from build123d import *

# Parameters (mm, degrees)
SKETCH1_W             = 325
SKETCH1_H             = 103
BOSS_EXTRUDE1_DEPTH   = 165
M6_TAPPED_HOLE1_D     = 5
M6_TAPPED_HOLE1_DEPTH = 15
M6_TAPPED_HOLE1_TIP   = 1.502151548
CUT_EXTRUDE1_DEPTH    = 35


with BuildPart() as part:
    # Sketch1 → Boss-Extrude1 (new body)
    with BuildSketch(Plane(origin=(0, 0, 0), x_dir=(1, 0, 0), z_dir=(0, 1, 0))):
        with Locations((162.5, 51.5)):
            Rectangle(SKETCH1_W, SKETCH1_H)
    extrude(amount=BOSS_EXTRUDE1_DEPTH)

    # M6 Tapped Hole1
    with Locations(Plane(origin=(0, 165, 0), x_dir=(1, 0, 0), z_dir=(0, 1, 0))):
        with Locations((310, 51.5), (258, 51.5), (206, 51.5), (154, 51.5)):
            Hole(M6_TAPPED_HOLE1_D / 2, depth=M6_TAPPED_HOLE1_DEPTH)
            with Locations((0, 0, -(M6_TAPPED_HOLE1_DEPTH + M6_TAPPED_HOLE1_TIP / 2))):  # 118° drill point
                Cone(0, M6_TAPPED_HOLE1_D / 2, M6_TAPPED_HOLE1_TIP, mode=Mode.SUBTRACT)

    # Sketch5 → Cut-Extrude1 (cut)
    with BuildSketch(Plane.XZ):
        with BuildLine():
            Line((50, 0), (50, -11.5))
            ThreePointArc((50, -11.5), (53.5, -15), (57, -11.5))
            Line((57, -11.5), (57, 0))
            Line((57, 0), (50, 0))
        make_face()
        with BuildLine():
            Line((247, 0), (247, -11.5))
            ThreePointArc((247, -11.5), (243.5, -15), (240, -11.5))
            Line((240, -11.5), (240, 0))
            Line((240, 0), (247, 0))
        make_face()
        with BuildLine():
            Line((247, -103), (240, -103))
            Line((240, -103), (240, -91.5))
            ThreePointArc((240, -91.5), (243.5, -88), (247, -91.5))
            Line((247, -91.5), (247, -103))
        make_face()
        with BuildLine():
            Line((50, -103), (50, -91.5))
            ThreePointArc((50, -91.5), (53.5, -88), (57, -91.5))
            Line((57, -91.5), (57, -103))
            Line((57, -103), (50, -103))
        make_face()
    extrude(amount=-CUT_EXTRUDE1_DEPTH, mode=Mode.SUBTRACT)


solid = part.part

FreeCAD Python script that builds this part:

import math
import FreeCAD as App
import Part
import Sketcher


def add_polygon(sketch, points):
    """Adds a closed chain of lines whose ends are joined by coincident constraints."""
    first, n = sketch.GeometryCount, len(points)
    for a, b in zip(points, points[1:] + points[:1]):
        sketch.addGeometry(Part.LineSegment(App.Vector(*a, 0), App.Vector(*b, 0)), False)
    for i in range(n):
        sketch.addConstraint(Sketcher.Constraint("Coincident", first + i, 2, first + (i + 1) % n, 1))

doc = App.newDocument("Part")
body = doc.addObject("PartDesign::Body", "Body")

# Sketch on XZ plane
sketch1 = body.newObject("Sketcher::SketchObject", "Sketch")
sketch1.AttachmentSupport = (doc.getObject("XZ_Plane"), [""])
sketch1.MapMode = "FlatFace"
add_polygon(sketch1, [(0, -103), (0, 0), (325, 0), (325, -103)])  # lines 0-3
sketch1.addConstraint(Sketcher.Constraint("Vertical", 0))
sketch1.addConstraint(Sketcher.Constraint("Horizontal", 1))
sketch1.addConstraint(Sketcher.Constraint("Vertical", 2))
sketch1.addConstraint(Sketcher.Constraint("Horizontal", 3))
sketch1.addConstraint(Sketcher.Constraint("Coincident", 0, 2, -1, 1))
sketch1.addConstraint(Sketcher.Constraint("DistanceX", 1, 1, 1, 2, 325.0))
sketch1.addConstraint(Sketcher.Constraint("DistanceY", 0, 1, 0, 2, 103.0))
pad1 = body.newObject("PartDesign::Pad", "Pad")
pad1.Profile = sketch1
pad1.Length = 165
pad1.Reversed = True

# Sketch on XZ plane
sketch2 = body.newObject("Sketcher::SketchObject", "Sketch001")
sketch2.AttachmentSupport = (doc.getObject("XZ_Plane"), [""])
sketch2.MapMode = "FlatFace"
sketch2.AttachmentOffset = App.Placement(App.Vector(0, 0, -165), App.Rotation())
sketch2.addGeometry(Part.Circle(App.Vector(310, -51.5, 0), App.Vector(0, 0, 1), 2.5), False)
sketch2.addGeometry(Part.Circle(App.Vector(258, -51.5, 0), App.Vector(0, 0, 1), 2.5), False)
sketch2.addGeometry(Part.Circle(App.Vector(206, -51.5, 0), App.Vector(0, 0, 1), 2.5), False)
sketch2.addGeometry(Part.Circle(App.Vector(154, -51.5, 0), App.Vector(0, 0, 1), 2.5), False)
sketch2.addConstraint(Sketcher.Constraint("Equal", 0, 1))
sketch2.addConstraint(Sketcher.Constraint("Equal", 1, 2))
sketch2.addConstraint(Sketcher.Constraint("Equal", 2, 3))
sketch2.addConstraint(Sketcher.Constraint("Horizontal", 0, 3, 1, 3))
sketch2.addConstraint(Sketcher.Constraint("Horizontal", 1, 3, 2, 3))
sketch2.addConstraint(Sketcher.Constraint("Horizontal", 2, 3, 3, 3))
sketch2.addConstraint(Sketcher.Constraint("Diameter", 0, 5.0))
sketch2.addConstraint(Sketcher.Constraint("DistanceX", -1, 1, 0, 3, 310.0))
sketch2.addConstraint(Sketcher.Constraint("DistanceX", -1, 1, 1, 3, 258.0))
sketch2.addConstraint(Sketcher.Constraint("DistanceX", -1, 1, 2, 3, 206.0))
sketch2.addConstraint(Sketcher.Constraint("DistanceX", -1, 1, 3, 3, 154.0))
sketch2.addConstraint(Sketcher.Constraint("DistanceY", 0, 3, -1, 1, 51.5))
doc.recompute()
hole = body.newObject("PartDesign::Hole", "Hole")
hole.Profile = sketch2
hole.ThreadType = "None"
hole.Diameter = 5
hole.DepthType = "Dimension"
hole.Depth = 15
hole.DrillPoint = "Angled"
hole.DrillPointAngle = 118
hole.Reversed = True

# Sketch on XZ plane
sketch3 = body.newObject("Sketcher::SketchObject", "Sketch002")
sketch3.AttachmentSupport = (doc.getObject("XZ_Plane"), [""])
sketch3.MapMode = "FlatFace"
sketch3.addGeometry(Part.LineSegment(App.Vector(50, 0, 0), App.Vector(50, -11.5, 0)), False)
sketch3.addGeometry(Part.ArcOfCircle(Part.Circle(App.Vector(53.5, -11.5, 0), App.Vector(0, 0, 1), 3.5), math.radians(180), math.radians(360)), False)
sketch3.addGeometry(Part.LineSegment(App.Vector(57, -11.5, 0), App.Vector(57, 0, 0)), False)
sketch3.addGeometry(Part.LineSegment(App.Vector(57, 0, 0), App.Vector(50, 0, 0)), False)
sketch3.addGeometry(Part.LineSegment(App.Vector(247, -11.5, 0), App.Vector(247, 0, 0)), False)
sketch3.addGeometry(Part.LineSegment(App.Vector(247, 0, 0), App.Vector(240, 0, 0)), False)
sketch3.addGeometry(Part.LineSegment(App.Vector(240, 0, 0), App.Vector(240, -11.5, 0)), False)
sketch3.addGeometry(Part.ArcOfCircle(Part.Circle(App.Vector(243.5, -11.5, 0), App.Vector(0, 0, 1), 3.5), math.radians(180), math.radians(360)), False)
sketch3.addGeometry(Part.LineSegment(App.Vector(240, -103, 0), App.Vector(247, -103, 0)), False)
sketch3.addGeometry(Part.LineSegment(App.Vector(247, -103, 0), App.Vector(247, -91.5, 0)), False)
sketch3.addGeometry(Part.ArcOfCircle(Part.Circle(App.Vector(243.5, -91.5, 0), App.Vector(0, 0, 1), 3.5), math.radians(0), math.radians(180)), False)
sketch3.addGeometry(Part.LineSegment(App.Vector(240, -91.5, 0), App.Vector(240, -103, 0)), False)
sketch3.addGeometry(Part.LineSegment(App.Vector(50, -91.5, 0), App.Vector(50, -103, 0)), False)
sketch3.addGeometry(Part.LineSegment(App.Vector(50, -103, 0), App.Vector(57, -103, 0)), False)
sketch3.addGeometry(Part.LineSegment(App.Vector(57, -103, 0), App.Vector(57, -91.5, 0)), False)
sketch3.addGeometry(Part.ArcOfCircle(Part.Circle(App.Vector(53.5, -91.5, 0), App.Vector(0, 0, 1), 3.5), math.radians(0), math.radians(180)), False)
sketch3.addConstraint(Sketcher.Constraint("Tangent", 0, 2, 1, 1))
sketch3.addConstraint(Sketcher.Constraint("Tangent", 1, 2, 2, 1))
sketch3.addConstraint(Sketcher.Constraint("Coincident", 2, 2, 3, 1))
sketch3.addConstraint(Sketcher.Constraint("Coincident", 3, 2, 0, 1))
sketch3.addConstraint(Sketcher.Constraint("Coincident", 4, 2, 5, 1))
sketch3.addConstraint(Sketcher.Constraint("Coincident", 5, 2, 6, 1))
sketch3.addConstraint(Sketcher.Constraint("Tangent", 6, 2, 7, 1))
sketch3.addConstraint(Sketcher.Constraint("Tangent", 7, 2, 4, 1))
sketch3.addConstraint(Sketcher.Constraint("Coincident", 8, 2, 9, 1))
sketch3.addConstraint(Sketcher.Constraint("Tangent", 9, 2, 10, 1))
sketch3.addConstraint(Sketcher.Constraint("Tangent", 10, 2, 11, 1))
sketch3.addConstraint(Sketcher.Constraint("Coincident", 11, 2, 8, 1))
sketch3.addConstraint(Sketcher.Constraint("Coincident", 12, 2, 13, 1))
sketch3.addConstraint(Sketcher.Constraint("Coincident", 13, 2, 14, 1))
sketch3.addConstraint(Sketcher.Constraint("Tangent", 14, 2, 15, 1))
sketch3.addConstraint(Sketcher.Constraint("Tangent", 15, 2, 12, 1))
sketch3.addConstraint(Sketcher.Constraint("Vertical", 0))
sketch3.addConstraint(Sketcher.Constraint("Vertical", 2))
sketch3.addConstraint(Sketcher.Constraint("Horizontal", 3))
sketch3.addConstraint(Sketcher.Constraint("Vertical", 4))
sketch3.addConstraint(Sketcher.Constraint("Horizontal", 5))
sketch3.addConstraint(Sketcher.Constraint("Vertical", 6))
sketch3.addConstraint(Sketcher.Constraint("Horizontal", 8))
sketch3.addConstraint(Sketcher.Constraint("Vertical", 9))
sketch3.addConstraint(Sketcher.Constraint("Vertical", 11))
sketch3.addConstraint(Sketcher.Constraint("Vertical", 12))
sketch3.addConstraint(Sketcher.Constraint("Horizontal", 13))
sketch3.addConstraint(Sketcher.Constraint("Vertical", 14))
sketch3.addConstraint(Sketcher.Constraint("Equal", 1, 7))
sketch3.addConstraint(Sketcher.Constraint("Equal", 7, 10))
sketch3.addConstraint(Sketcher.Constraint("Equal", 10, 15))
sketch3.addConstraint(Sketcher.Constraint("PointOnObject", 2, 2, -1))
sketch3.addConstraint(Sketcher.Constraint("PointOnObject", 4, 2, -1))
sketch3.addConstraint(Sketcher.Constraint("Horizontal", 1, 3, 7, 3))
sketch3.addConstraint(Sketcher.Constraint("Horizontal", 10, 3, 15, 3))
sketch3.addConstraint(Sketcher.Constraint("Horizontal", 11, 2, 12, 2))
sketch3.addConstraint(Sketcher.Constraint("Vertical", 7, 3, 10, 3))
sketch3.addConstraint(Sketcher.Constraint("Vertical", 1, 3, 15, 3))
sketch3.addConstraint(Sketcher.Constraint("Equal", 6, 9))
sketch3.addConstraint(Sketcher.Constraint("Radius", 1, 3.5))
sketch3.addConstraint(Sketcher.Constraint("DistanceY", 0, 2, 0, 1, 11.5))
sketch3.addConstraint(Sketcher.Constraint("DistanceX", -1, 1, 0, 2, 50.0))
sketch3.addConstraint(Sketcher.Constraint("DistanceX", -1, 1, 4, 2, 247.0))
sketch3.addConstraint(Sketcher.Constraint("DistanceY", 8, 2, -1, 1, 103.0))
pocket1 = body.newObject("PartDesign::Pocket", "Pocket")
pocket1.Profile = sketch3
pocket1.Length = 35

doc.recompute()
